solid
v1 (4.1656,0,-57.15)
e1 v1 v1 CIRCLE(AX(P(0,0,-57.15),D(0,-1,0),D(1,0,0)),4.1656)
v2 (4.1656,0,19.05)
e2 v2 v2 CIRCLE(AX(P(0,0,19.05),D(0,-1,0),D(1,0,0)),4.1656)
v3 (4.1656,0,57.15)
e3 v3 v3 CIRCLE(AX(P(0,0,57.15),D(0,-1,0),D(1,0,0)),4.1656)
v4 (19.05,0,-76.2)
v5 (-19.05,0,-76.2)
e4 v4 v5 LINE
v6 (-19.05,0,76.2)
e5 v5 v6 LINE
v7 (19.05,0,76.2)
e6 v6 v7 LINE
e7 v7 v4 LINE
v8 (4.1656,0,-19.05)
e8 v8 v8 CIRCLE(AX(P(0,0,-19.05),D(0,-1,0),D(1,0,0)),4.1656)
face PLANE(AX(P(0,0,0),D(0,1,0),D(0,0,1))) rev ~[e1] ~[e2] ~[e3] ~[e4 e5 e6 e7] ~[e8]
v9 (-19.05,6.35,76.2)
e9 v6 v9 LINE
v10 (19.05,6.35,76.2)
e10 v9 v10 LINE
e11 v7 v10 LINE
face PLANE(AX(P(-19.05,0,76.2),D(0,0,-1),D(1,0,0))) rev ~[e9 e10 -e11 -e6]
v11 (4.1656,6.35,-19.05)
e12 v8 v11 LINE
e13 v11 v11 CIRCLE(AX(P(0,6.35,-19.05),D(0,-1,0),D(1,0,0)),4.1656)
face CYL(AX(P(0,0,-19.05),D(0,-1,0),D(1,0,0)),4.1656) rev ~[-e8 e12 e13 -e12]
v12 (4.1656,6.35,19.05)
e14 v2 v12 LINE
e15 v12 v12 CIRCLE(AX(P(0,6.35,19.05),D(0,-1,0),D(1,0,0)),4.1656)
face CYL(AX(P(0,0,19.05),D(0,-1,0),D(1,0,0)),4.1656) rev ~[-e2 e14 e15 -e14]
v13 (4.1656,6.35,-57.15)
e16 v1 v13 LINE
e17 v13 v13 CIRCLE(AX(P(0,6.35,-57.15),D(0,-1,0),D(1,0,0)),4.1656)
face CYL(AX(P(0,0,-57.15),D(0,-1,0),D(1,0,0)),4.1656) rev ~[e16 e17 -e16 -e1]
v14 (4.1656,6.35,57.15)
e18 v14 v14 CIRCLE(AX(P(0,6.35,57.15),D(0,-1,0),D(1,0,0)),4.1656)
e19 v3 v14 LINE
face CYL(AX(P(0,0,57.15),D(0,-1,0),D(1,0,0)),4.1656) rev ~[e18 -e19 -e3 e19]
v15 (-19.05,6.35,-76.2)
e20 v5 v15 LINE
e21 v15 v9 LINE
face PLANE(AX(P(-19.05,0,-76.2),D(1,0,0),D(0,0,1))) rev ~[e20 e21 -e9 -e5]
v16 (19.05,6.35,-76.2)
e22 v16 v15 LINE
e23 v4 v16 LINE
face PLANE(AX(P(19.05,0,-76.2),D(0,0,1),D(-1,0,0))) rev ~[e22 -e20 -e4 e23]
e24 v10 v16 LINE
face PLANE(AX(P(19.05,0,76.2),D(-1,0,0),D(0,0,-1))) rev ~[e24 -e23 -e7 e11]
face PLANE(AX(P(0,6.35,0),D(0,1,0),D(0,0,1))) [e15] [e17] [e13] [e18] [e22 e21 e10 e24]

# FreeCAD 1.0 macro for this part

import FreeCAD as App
import Part
import Sketcher
Q = App.Units.Quantity

doc = App.newDocument("Part")
params = doc.addObject("Spreadsheet::Sheet", "Params")
for row, (alias, value) in enumerate([
    ("sketch1_height", "6 in"),
    ("sketch1_diameter", "0.328 in"),
    ("sketch1_width", "1.5 in"),
    ("pad1_length", "0.25 in"),
], start=1):
    params.set(f"A{row}", alias)
    params.set(f"B{row}", "=" + value)
    params.setAlias(f"B{row}", alias)

body = doc.addObject("PartDesign::Body", "Body")

sketch1 = body.newObject("Sketcher::SketchObject", "Sketch")
sketch1.AttachmentSupport = (doc.getObject("XZ_Plane"), [""])
sketch1.MapMode = "FlatFace"
sketch1.addGeometry([
    Part.LineSegment(App.Vector(19.1, 76.2, 0), App.Vector(-19.1, 76.2, 0)),
    Part.LineSegment(App.Vector(-19.1, 76.2, 0), App.Vector(-19.1, -76.2, 0)),
    Part.LineSegment(App.Vector(-19.1, -76.2, 0), App.Vector(19.1, -76.2, 0)),
    Part.LineSegment(App.Vector(19.1, -76.2, 0), App.Vector(19.1, 76.2, 0)),
    Part.Circle(App.Vector(0, -57.1, 0), App.Vector(0, 0, 1), 4.2),
    Part.Circle(App.Vector(0, -19.1, 0), App.Vector(0, 0, 1), 4.2),
    Part.Circle(App.Vector(0, 19.1, 0), App.Vector(0, 0, 1), 4.2),
    Part.Circle(App.Vector(0, 57.1, 0), App.Vector(0, 0, 1), 4.2),
], False)
sketch1.addConstraint([
    Sketcher.Constraint("Coincident", 0, 2, 1, 1),
    Sketcher.Constraint("Coincident", 1, 2, 2, 1),
    Sketcher.Constraint("Coincident", 2, 2, 3, 1),
    Sketcher.Constraint("Coincident", 3, 2, 0, 1),
    Sketcher.Constraint("Horizontal", 0),
    Sketcher.Constraint("Vertical", 1),
    Sketcher.Constraint("Horizontal", 2),
    Sketcher.Constraint("Vertical", 3),
    Sketcher.Constraint("Equal", 4, 5),
    Sketcher.Constraint("Equal", 5, 6),
    Sketcher.Constraint("Equal", 6, 7),
    Sketcher.Constraint("Symmetric", 5, 3, 6, 3, -1, 1),
    Sketcher.Constraint("Symmetric", 4, 3, 7, 3, -1, 1),
    Sketcher.Constraint("Symmetric", 0, 2, 2, 2, -1, 1),
    Sketcher.Constraint("PointOnObject", 4, 3, -2),
    Sketcher.Constraint("PointOnObject", 5, 3, -2),
    Sketcher.Constraint("DistanceY", 1, 2, 1, 1, Q("6 in")),
    Sketcher.Constraint("Diameter", 4, Q("0.328 in")),
    Sketcher.Constraint("DistanceX", 0, 2, 0, 1, Q("1.5 in")),
    Sketcher.Constraint("DistanceY", 4, 3, 6, 3, Q("3 in")),
    Sketcher.Constraint("DistanceY", 4, 3, 5, 3, Q("1.5 in")),
])
sketch1.setExpression("Constraints[16]", "Params.sketch1_height")
sketch1.setExpression("Constraints[17]", "Params.sketch1_diameter")
sketch1.setExpression("Constraints[18]", "Params.sketch1_width")
pad1 = body.newObject("PartDesign::Pad", "Pad")
pad1.Profile = sketch1
pad1.setExpression("Length", "Params.pad1_length")
pad1.Reversed = True

doc.recompute()
